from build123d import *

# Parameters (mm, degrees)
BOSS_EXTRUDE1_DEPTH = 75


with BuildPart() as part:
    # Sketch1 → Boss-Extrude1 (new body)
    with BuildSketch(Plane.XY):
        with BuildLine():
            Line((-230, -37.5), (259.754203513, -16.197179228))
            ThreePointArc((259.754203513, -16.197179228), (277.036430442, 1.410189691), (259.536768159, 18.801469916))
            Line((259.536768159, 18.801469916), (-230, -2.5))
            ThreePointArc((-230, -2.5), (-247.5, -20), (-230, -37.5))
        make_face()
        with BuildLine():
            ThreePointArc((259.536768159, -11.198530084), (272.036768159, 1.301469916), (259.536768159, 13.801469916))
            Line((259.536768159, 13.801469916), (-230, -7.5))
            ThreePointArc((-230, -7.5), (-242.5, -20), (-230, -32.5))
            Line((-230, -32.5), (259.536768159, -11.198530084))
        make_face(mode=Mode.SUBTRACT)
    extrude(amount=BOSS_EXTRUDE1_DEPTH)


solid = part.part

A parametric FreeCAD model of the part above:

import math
import FreeCAD as App
import Part
import Sketcher

V = App.Vector
Q = App.Units.Quantity

doc = App.newDocument("Part")
body = doc.addObject("PartDesign::Body", "Body")

# Sketch on XY plane
sketch1 = body.newObject("Sketcher::SketchObject", "Sketch")
sketch1.AttachmentSupport = (doc.getObject("XY_Plane"), [""])
sketch1.MapMode = "FlatFace"
sketch1.addGeometry(Part.LineSegment(V(-230, -37.5, 0), V(259.754204, -16.197179, 0)), False)
sketch1.addGeometry(Part.ArcOfCircle(Part.Circle(V(259.536768, 1.30147, 0), V(0, 0, 1), 17.5), math.radians(-89.288089), math.radians(90)), False)
sketch1.addGeometry(Part.LineSegment(V(259.536768, 18.80147, 0), V(-230, -2.5, 0)), False)
sketch1.addGeometry(Part.ArcOfCircle(Part.Circle(V(-230, -20, 0), V(0, 0, 1), 17.5), math.radians(90), math.radians(270)), False)
sketch1.addGeometry(Part.ArcOfCircle(Part.Circle(V(259.536768, 1.30147, 0), V(0, 0, 1), 12.5), math.radians(-90), math.radians(90)), False)
sketch1.addGeometry(Part.LineSegment(V(259.536768, -11.19853, 0), V(-230, -32.5, 0)), False)
sketch1.addGeometry(Part.ArcOfCircle(Part.Circle(V(-230, -20, 0), V(0, 0, 1), 12.5), math.radians(90), math.radians(270)), False)
sketch1.addGeometry(Part.LineSegment(V(-230, -7.5, 0), V(259.536768, 13.80147, 0)), False)
sketch1.addConstraint(Sketcher.Constraint("Coincident", 0, 2, 1, 1))
sketch1.addConstraint(Sketcher.Constraint("Coincident", 1, 2, 2, 1))
sketch1.addConstraint(Sketcher.Constraint("Coincident", 2, 2, 3, 1))
sketch1.addConstraint(Sketcher.Constraint("Coincident", 3, 2, 0, 1))
sketch1.addConstraint(Sketcher.Constraint("Coincident", 4, 1, 5, 1))
sketch1.addConstraint(Sketcher.Constraint("Coincident", 5, 2, 6, 2))
sketch1.addConstraint(Sketcher.Constraint("Coincident", 6, 1, 7, 1))
sketch1.addConstraint(Sketcher.Constraint("Coincident", 7, 2, 4, 2))
sketch1.addConstraint(Sketcher.Constraint("Coincident", 4, 3, 1, 3))
sketch1.addConstraint(Sketcher.Constraint("Coincident", 6, 3, 3, 3))
sketch1.addConstraint(Sketcher.Constraint("Equal", 1, 3))
sketch1.addConstraint(Sketcher.Constraint("Equal", 4, 6))
sketch1.addConstraint(Sketcher.Constraint("Parallel", 2, 5))
sketch1.addConstraint(Sketcher.Constraint("Parallel", 5, 7))
sketch1.addConstraint(Sketcher.Constraint("Vertical", 4, 3, 1, 2))
sketch1.addConstraint(Sketcher.Constraint("Vertical", 6, 3, 2, 2))
sketch1.addConstraint(Sketcher.Constraint("Vertical", 2, 2, 3, 2))
sketch1.addConstraint(Sketcher.Constraint("Vertical", 1, 2, 4, 1))
sketch1.addConstraint(Sketcher.Constraint("Vertical", 5, 2, 6, 1))
sketch1.addConstraint(Sketcher.Constraint("Radius", 1, Q("17.5 mm")))
sketch1.addConstraint(Sketcher.Constraint("Radius", 4, Q("12.5 mm")))
sketch1.addConstraint(Sketcher.Constraint("Distance", 2, Q("490 mm")))
sketch1.addConstraint(Sketcher.Constraint("DistanceX", 3, 3, -1, 1, Q("230 mm")))
sketch1.addConstraint(Sketcher.Constraint("DistanceY", 3, 3, -1, 1, Q("20 mm")))
sketch1.addConstraint(Sketcher.Constraint("Distance", 0, Q("490.217289 mm")))
sketch1.addConstraint(Sketcher.Constraint("DistanceX", -1, 1, 1, 3, Q("259.536768 mm")))
pad1 = body.newObject("PartDesign::Pad", "Pad")
pad1.Profile = sketch1
pad1.Length = 75

doc.recompute()
